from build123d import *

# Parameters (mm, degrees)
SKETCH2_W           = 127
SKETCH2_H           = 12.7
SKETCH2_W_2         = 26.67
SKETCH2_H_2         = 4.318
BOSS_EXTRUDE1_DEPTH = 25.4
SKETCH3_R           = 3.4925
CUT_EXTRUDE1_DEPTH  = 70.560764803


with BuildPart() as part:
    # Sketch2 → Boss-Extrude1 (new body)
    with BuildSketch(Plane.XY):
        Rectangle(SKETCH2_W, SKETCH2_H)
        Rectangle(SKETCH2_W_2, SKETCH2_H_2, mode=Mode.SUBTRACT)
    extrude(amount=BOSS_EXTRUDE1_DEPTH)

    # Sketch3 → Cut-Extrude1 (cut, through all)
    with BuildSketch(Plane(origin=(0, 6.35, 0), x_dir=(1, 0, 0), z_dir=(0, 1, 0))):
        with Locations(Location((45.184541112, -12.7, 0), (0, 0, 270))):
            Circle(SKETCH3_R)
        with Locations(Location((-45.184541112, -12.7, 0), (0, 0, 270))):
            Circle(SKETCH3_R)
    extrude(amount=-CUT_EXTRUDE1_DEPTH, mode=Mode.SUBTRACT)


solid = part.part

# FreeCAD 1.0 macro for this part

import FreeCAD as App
import Part
import Sketcher
Q = App.Units.Quantity


def add_polygon(sketch, points):
    """Adds a closed chain of lines whose ends are joined by coincident constraints."""
    first, n = sketch.GeometryCount, len(points)
    for a, b in zip(points, points[1:] + points[:1]):
        sketch.addGeometry(Part.LineSegment(App.Vector(*a, 0), App.Vector(*b, 0)), False)
    for i in range(n):
        sketch.addConstraint(Sketcher.Constraint("Coincident", first + i, 2, first + (i + 1) % n, 1))

doc = App.newDocument("Part")
body = doc.addObject("PartDesign::Body", "Body")

# Sketch on XY plane
sketch1 = doc.addObject("Sketcher::SketchObject", "Sketch")
body.addObject(sketch1)
sketch1.AttachmentSupport = (doc.XY_Plane, [""])
sketch1.MapMode = "FlatFace"
add_polygon(sketch1, [(-63.5, 6.3), (-63.5, -6.3), (63.5, -6.3), (63.5, 6.3)])  # lines 0-3
add_polygon(sketch1, [(13.3, -2.2), (-13.3, -2.2), (-13.3, 2.2), (13.3, 2.2)])  # lines 4-7
sketch1.addConstraint([
    Sketcher.Constraint("Vertical", 0),
    Sketcher.Constraint("Horizontal", 1),
    Sketcher.Constraint("Vertical", 2),
    Sketcher.Constraint("Horizontal", 3),
    Sketcher.Constraint("Horizontal", 4),
    Sketcher.Constraint("Vertical", 5),
    Sketcher.Constraint("Horizontal", 6),
    Sketcher.Constraint("Vertical", 7),
    Sketcher.Constraint("Symmetric", 0, 2, 2, 2, -1, 1),
    Sketcher.Constraint("Symmetric", 4, 2, 6, 2, -1, 1),
    Sketcher.Constraint("DistanceX", 1, 1, 1, 2, Q("5 in")),
    Sketcher.Constraint("DistanceY", 0, 2, 0, 1, Q("0.5 in")),
    Sketcher.Constraint("DistanceX", 4, 2, 4, 1, Q("1.05 in")),
    Sketcher.Constraint("DistanceY", 5, 1, 5, 2, Q("0.17 in")),
])
pad1 = doc.addObject("PartDesign::Pad", "Pad")
body.addObject(pad1)
pad1.Profile = sketch1
pad1.Length = Q("1 in")

# Sketch on XZ plane
sketch2 = doc.addObject("Sketcher::SketchObject", "Sketch001")
body.addObject(sketch2)
sketch2.AttachmentSupport = (doc.XZ_Plane, [""])
sketch2.MapMode = "FlatFace"
sketch2.AttachmentOffset = App.Placement(App.Vector(0, 0, -0.25 * 25.4), App.Rotation())
sketch2.addGeometry([
    Part.Circle(App.Vector(45.2, 12.7, 0), App.Vector(0, 0, 1), 3.5),
    Part.Circle(App.Vector(-45.2, 12.7, 0), App.Vector(0, 0, 1), 3.5),
], False)
sketch2.addConstraint([
    Sketcher.Constraint("Equal", 0, 1),
    Sketcher.Constraint("Symmetric", 0, 3, 1, 3, -2),
    Sketcher.Constraint("Diameter", 0, Q("0.275 in")),
    Sketcher.Constraint("DistanceY", -1, 1, 0, 3, Q("0.5 in")),
    Sketcher.Constraint("DistanceX", -1, 1, 0, 3, 45.184541),
])
pocket1 = doc.addObject("PartDesign::Pocket", "Pocket")
body.addObject(pocket1)
pocket1.Profile = sketch2
pocket1.Type = "ThroughAll"
pocket1.Reversed = True

doc.recompute()
